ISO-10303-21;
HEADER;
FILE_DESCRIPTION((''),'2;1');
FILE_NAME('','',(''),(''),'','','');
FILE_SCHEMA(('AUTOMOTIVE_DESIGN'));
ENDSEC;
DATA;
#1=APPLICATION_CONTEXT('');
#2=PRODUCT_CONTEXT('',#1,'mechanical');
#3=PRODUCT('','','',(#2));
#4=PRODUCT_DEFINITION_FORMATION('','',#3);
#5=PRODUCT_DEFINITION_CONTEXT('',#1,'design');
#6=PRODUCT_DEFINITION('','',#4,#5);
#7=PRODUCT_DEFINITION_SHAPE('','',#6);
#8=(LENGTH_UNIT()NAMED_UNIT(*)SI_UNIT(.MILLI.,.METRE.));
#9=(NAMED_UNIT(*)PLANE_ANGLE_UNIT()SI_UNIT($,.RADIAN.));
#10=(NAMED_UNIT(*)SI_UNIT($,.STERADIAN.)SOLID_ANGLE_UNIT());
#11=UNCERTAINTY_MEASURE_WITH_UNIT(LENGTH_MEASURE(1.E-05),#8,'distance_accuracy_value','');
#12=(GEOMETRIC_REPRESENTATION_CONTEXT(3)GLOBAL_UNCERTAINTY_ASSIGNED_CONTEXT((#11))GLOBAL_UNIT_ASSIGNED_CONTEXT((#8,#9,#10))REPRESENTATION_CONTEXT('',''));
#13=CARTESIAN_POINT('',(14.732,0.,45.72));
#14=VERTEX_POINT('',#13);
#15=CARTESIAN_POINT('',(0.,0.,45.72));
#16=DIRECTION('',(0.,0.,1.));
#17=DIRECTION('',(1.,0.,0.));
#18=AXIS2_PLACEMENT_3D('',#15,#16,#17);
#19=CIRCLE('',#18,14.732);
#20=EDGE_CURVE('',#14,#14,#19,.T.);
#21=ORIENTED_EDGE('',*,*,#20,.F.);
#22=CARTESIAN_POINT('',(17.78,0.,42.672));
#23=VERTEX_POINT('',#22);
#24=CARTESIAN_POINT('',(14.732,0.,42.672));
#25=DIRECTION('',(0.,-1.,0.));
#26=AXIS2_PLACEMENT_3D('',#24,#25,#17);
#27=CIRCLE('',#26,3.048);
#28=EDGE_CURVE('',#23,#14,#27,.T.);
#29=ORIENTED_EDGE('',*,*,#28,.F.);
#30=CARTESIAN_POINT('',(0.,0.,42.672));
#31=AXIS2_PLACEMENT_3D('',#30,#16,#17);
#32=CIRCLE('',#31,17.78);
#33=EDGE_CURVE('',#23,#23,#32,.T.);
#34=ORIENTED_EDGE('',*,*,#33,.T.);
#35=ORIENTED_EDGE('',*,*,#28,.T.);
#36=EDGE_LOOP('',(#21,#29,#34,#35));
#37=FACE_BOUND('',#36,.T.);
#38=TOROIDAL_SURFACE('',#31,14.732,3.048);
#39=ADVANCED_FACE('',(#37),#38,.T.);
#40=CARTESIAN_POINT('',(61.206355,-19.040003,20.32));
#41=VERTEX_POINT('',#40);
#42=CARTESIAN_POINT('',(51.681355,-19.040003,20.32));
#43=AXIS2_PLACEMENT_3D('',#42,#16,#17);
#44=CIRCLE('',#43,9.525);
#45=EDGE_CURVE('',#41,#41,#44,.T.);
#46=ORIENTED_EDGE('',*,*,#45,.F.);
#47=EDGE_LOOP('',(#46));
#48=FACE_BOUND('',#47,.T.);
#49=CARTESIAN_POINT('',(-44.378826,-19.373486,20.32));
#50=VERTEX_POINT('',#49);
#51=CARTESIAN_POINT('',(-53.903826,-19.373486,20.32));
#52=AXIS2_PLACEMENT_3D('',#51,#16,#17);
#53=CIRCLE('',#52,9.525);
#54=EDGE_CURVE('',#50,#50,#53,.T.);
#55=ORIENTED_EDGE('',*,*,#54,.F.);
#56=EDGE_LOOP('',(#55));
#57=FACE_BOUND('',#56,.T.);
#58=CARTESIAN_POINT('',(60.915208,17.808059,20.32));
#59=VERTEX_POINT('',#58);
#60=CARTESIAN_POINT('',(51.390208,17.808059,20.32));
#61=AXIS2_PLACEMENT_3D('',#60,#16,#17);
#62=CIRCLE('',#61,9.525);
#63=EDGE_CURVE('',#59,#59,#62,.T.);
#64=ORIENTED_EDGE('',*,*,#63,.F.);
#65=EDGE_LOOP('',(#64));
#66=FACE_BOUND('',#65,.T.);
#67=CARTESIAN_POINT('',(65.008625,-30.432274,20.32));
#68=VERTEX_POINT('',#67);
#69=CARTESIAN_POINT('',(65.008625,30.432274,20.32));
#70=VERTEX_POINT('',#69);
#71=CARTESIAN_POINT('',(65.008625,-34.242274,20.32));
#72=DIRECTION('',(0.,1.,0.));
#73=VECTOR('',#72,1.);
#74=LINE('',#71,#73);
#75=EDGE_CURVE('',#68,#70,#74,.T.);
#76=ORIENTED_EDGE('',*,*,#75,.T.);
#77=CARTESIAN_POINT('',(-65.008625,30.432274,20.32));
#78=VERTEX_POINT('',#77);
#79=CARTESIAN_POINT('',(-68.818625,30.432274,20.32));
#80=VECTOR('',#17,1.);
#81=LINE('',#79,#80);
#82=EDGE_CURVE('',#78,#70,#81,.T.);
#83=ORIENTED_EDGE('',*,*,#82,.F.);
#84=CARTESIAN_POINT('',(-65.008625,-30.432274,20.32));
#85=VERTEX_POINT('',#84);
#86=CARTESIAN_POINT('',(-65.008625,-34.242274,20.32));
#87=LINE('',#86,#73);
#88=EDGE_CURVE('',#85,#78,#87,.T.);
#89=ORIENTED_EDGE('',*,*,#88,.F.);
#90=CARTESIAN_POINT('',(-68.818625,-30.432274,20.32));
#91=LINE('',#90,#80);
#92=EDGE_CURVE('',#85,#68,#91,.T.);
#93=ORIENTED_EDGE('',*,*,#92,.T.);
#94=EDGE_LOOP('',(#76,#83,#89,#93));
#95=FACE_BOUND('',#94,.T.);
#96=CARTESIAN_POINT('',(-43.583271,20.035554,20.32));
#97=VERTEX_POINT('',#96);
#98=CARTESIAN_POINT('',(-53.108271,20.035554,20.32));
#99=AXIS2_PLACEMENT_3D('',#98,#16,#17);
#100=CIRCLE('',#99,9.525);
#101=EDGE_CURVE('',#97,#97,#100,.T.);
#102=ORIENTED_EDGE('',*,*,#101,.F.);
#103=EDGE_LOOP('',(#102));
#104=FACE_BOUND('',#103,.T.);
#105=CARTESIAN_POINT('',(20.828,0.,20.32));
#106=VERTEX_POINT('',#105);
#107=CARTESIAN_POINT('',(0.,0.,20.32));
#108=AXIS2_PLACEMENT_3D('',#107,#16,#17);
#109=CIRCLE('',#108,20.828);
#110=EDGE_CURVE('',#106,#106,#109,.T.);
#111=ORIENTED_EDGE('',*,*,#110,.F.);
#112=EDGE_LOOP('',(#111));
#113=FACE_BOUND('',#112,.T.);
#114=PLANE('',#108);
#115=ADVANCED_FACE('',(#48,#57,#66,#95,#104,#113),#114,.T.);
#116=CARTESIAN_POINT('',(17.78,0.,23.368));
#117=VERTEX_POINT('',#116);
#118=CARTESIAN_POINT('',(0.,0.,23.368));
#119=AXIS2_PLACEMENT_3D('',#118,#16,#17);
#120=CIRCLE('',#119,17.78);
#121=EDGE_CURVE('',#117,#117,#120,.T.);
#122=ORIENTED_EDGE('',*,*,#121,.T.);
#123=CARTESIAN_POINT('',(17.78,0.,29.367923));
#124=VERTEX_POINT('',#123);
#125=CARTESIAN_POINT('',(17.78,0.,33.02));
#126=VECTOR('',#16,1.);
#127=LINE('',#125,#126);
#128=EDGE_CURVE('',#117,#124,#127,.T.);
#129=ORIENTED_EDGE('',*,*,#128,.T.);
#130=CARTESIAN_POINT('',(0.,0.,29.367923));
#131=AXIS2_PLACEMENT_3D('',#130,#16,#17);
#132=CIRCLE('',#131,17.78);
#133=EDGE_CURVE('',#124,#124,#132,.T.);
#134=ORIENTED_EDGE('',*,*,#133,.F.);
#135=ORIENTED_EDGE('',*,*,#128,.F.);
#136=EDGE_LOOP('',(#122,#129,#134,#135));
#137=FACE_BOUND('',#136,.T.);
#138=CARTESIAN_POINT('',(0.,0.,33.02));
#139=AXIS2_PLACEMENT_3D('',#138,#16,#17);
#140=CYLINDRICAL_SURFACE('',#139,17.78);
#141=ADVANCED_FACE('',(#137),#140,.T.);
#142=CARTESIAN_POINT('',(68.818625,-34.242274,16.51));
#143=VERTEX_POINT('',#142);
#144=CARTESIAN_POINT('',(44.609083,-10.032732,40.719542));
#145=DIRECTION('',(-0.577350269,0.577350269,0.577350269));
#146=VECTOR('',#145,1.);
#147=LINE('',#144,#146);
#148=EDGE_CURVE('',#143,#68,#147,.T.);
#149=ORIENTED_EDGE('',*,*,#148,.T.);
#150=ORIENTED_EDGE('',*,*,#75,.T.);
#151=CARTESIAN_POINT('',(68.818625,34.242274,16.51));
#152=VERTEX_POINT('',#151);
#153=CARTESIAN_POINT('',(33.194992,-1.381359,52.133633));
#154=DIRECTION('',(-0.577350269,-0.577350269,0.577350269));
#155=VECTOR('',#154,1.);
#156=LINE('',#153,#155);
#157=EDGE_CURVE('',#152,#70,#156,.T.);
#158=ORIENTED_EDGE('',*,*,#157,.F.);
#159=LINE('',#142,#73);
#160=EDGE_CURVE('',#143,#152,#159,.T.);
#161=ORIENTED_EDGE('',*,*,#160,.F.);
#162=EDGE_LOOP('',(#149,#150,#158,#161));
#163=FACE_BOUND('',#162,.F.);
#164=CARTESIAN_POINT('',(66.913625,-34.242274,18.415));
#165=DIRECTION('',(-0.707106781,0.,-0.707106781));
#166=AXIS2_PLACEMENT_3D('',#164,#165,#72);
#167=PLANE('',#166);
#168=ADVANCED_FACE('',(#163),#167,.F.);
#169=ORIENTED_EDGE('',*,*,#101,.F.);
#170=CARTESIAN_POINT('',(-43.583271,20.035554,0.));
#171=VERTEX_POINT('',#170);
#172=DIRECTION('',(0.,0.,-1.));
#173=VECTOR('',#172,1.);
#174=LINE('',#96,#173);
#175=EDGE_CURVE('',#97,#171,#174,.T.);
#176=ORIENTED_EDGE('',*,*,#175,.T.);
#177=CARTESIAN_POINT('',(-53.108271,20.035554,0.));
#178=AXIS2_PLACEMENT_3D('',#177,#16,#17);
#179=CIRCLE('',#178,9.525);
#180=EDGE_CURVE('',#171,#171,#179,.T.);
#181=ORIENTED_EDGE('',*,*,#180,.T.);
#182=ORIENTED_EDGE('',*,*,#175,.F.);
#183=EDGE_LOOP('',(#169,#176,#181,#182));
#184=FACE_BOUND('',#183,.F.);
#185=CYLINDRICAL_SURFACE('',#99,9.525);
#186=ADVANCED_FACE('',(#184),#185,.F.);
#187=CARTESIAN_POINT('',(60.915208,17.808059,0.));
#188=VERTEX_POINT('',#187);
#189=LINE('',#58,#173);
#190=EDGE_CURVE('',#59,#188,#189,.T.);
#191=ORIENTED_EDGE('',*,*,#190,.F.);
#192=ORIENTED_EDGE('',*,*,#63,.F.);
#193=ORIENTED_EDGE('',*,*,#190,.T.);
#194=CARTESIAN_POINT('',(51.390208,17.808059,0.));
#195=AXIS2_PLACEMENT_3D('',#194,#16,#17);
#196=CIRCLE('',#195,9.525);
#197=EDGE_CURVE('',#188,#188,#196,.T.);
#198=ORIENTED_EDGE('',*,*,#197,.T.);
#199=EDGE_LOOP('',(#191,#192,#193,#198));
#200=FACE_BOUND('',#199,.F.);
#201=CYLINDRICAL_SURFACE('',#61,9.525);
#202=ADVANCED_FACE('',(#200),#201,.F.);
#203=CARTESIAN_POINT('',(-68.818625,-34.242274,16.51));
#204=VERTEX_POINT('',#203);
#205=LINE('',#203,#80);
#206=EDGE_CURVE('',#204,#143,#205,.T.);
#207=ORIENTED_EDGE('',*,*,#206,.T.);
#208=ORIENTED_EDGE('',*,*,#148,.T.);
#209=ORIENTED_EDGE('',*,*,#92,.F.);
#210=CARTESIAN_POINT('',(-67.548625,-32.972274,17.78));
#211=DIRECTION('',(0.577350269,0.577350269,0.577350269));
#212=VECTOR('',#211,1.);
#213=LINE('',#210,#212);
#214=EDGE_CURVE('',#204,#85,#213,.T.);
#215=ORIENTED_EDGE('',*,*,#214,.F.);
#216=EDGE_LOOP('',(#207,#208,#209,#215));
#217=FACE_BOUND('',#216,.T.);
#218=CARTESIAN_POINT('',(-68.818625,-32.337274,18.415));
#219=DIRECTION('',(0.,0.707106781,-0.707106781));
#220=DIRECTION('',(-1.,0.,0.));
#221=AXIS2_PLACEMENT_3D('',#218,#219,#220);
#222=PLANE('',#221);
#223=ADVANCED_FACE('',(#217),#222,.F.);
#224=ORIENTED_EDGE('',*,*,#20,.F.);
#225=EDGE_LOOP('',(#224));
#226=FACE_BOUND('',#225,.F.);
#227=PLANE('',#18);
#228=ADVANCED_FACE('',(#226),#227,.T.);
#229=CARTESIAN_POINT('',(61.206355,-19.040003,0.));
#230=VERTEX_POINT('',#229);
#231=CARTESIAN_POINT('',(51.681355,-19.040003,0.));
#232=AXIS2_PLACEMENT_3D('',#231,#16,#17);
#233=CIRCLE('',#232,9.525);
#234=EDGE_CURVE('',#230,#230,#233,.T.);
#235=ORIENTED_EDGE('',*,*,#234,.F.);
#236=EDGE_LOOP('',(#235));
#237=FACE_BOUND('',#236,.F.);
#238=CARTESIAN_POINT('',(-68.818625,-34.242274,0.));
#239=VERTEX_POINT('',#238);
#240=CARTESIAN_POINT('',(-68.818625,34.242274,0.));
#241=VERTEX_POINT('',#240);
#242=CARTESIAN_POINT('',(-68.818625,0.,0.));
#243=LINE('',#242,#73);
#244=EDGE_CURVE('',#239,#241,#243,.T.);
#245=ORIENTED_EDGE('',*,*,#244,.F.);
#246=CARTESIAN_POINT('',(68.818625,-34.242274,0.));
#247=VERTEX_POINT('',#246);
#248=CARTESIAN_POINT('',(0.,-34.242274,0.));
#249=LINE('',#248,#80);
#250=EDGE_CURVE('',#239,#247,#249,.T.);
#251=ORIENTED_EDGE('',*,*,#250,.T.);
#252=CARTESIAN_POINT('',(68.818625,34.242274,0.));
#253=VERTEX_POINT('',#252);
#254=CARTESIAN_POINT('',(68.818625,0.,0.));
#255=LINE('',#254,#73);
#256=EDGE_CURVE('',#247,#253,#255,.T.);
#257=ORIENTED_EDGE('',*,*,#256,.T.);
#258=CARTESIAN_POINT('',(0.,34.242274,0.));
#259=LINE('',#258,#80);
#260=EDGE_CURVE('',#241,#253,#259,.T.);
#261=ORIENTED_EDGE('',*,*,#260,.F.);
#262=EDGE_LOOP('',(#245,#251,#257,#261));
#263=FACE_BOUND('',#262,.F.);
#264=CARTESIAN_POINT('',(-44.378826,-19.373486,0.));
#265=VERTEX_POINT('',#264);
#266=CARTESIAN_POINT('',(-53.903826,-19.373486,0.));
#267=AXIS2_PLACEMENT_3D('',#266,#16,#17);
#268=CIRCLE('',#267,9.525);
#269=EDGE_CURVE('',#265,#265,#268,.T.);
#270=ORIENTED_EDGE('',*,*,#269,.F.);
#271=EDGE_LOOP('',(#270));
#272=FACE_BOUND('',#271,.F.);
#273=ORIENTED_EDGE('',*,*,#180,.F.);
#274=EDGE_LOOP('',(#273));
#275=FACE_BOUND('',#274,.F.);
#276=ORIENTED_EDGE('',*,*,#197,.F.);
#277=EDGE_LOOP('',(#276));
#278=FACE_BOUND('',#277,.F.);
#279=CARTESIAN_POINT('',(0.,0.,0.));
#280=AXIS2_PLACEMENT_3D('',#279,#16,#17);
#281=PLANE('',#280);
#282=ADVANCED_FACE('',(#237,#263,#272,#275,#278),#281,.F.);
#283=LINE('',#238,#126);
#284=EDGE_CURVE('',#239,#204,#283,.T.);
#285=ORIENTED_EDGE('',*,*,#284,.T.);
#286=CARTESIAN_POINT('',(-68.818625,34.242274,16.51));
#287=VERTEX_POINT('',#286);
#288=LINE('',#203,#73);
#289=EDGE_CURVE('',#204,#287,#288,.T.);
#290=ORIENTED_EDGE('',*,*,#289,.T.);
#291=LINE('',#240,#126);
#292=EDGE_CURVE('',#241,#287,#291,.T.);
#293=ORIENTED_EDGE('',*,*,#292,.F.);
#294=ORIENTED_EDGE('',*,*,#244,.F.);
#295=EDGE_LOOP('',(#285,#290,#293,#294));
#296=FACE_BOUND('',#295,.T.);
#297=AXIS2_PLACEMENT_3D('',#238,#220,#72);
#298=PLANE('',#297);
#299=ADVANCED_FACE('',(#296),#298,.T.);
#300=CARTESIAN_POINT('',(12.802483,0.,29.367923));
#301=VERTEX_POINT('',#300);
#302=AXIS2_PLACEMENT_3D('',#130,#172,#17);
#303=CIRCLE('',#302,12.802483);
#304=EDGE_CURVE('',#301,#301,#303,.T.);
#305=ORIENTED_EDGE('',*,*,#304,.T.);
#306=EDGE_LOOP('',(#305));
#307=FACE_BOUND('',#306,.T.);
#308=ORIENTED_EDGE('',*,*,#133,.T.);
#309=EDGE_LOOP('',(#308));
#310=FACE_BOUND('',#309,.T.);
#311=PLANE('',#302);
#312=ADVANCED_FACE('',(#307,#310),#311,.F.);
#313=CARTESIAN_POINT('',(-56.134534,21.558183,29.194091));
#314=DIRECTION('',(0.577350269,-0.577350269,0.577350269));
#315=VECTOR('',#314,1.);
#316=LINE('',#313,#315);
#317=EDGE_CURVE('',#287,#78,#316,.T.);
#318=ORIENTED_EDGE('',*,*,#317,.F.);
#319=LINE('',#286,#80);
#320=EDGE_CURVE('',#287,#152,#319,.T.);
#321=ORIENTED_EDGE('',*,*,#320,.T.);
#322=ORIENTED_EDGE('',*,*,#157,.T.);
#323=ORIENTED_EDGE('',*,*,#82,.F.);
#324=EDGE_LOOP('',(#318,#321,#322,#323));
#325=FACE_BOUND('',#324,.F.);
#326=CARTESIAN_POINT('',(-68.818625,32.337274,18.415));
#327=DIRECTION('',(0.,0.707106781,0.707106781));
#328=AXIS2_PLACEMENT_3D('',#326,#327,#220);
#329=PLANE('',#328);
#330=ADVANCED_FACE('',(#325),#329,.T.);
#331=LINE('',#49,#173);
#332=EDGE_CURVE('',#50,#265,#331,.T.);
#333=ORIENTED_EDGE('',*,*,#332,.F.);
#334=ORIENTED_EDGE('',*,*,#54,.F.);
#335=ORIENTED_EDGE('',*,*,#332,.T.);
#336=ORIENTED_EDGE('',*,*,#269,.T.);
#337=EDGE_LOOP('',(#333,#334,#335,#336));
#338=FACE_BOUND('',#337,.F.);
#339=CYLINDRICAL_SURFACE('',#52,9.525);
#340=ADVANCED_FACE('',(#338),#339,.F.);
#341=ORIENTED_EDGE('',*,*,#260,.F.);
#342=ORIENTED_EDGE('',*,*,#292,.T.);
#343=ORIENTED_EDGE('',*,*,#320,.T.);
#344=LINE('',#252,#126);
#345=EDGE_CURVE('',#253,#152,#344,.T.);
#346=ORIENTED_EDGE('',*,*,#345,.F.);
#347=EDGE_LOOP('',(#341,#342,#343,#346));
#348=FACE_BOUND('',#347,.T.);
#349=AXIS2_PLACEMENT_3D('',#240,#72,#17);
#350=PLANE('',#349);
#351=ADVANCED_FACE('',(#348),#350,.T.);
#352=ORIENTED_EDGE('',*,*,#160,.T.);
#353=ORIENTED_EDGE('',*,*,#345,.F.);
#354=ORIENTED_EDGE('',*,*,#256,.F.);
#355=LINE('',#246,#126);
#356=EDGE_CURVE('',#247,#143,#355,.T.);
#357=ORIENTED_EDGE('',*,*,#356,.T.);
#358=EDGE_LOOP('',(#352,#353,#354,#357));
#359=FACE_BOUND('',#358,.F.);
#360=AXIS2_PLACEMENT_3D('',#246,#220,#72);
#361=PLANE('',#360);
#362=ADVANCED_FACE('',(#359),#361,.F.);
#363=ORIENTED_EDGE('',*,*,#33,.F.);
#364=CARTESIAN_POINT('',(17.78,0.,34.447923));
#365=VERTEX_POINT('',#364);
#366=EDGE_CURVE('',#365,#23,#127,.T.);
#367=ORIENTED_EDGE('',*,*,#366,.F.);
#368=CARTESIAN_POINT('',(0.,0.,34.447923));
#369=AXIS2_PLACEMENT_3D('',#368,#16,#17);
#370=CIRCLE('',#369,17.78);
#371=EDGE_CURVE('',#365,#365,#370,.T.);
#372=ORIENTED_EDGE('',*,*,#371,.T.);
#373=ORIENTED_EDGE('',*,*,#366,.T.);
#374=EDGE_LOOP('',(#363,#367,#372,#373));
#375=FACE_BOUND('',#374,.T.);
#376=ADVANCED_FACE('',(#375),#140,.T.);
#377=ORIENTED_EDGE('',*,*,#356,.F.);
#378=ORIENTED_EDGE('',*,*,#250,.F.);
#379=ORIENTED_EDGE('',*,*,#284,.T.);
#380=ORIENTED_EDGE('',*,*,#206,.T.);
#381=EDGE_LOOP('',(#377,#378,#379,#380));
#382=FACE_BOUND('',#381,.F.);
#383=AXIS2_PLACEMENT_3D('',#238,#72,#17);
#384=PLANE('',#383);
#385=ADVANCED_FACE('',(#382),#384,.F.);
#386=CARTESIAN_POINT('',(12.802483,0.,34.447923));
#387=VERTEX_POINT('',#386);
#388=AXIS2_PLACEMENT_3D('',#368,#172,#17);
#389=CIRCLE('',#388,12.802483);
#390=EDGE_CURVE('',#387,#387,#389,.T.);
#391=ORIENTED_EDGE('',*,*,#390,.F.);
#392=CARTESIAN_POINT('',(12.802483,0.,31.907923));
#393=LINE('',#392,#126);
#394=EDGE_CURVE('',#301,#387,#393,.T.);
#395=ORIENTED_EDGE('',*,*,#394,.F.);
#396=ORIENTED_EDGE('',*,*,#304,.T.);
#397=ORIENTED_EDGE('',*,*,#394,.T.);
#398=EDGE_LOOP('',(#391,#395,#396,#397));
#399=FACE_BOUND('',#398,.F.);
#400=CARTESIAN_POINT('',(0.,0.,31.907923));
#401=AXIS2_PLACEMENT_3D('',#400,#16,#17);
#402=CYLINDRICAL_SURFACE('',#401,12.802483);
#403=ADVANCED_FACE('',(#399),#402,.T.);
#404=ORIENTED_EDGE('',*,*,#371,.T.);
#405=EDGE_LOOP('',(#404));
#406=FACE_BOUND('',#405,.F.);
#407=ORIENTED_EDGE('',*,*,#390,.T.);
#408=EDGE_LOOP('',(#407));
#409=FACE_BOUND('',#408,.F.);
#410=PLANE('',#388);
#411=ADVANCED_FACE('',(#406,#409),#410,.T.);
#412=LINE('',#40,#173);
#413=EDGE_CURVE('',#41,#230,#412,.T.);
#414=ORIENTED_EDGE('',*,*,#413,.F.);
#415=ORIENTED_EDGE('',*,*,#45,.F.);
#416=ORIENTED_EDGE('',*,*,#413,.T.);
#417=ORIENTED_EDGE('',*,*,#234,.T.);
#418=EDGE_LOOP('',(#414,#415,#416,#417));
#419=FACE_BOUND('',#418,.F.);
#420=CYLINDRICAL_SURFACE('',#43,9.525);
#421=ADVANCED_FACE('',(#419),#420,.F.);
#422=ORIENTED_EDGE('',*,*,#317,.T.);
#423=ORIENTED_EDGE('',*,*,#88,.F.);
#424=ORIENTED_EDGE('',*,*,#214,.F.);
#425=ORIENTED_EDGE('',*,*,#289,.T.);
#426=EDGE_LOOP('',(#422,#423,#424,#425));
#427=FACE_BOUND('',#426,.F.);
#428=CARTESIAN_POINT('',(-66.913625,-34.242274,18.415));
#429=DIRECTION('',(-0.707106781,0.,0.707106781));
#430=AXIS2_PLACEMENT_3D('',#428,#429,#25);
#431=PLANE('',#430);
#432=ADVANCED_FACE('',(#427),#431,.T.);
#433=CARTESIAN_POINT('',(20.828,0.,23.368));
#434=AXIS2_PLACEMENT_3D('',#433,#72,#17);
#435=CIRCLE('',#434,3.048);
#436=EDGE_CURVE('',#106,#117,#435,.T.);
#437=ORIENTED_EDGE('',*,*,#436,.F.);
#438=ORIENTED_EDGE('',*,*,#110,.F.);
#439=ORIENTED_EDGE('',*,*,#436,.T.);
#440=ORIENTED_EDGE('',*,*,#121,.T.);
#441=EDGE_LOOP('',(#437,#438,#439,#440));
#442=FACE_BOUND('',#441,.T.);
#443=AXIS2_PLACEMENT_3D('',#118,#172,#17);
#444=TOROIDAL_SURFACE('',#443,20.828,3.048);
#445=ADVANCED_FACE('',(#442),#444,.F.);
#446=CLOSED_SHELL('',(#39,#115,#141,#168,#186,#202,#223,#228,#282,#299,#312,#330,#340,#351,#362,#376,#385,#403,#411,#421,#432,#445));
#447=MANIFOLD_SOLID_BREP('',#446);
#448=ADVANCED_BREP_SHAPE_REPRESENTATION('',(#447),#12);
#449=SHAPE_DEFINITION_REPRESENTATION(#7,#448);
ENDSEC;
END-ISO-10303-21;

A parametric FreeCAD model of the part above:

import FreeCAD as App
import Part
import Sketcher
Q = App.Units.Quantity


def edges_at(feature, points):
    """Names of the edges that pass closest to the given points."""
    edges = feature.Shape.Edges
    near = lambda p: min(range(len(edges)), key=lambda i: edges[i].distToShape(Part.Vertex(*p))[0])
    return sorted({f"Edge{near(p) + 1}" for p in points})


def add_polygon(sketch, points):
    """Adds a closed chain of lines whose ends are joined by coincident constraints."""
    first, n = sketch.GeometryCount, len(points)
    for a, b in zip(points, points[1:] + points[:1]):
        sketch.addGeometry(Part.LineSegment(App.Vector(*a, 0), App.Vector(*b, 0)), False)
    for i in range(n):
        sketch.addConstraint(Sketcher.Constraint("Coincident", first + i, 2, first + (i + 1) % n, 1))

doc = App.newDocument("Part")
body = doc.addObject("PartDesign::Body", "Body")

# Sketch on XY plane
sketch1 = body.newObject("Sketcher::SketchObject", "Sketch")
sketch1.AttachmentSupport = (doc.getObject("XY_Plane"), [""])
sketch1.MapMode = "FlatFace"
add_polygon(sketch1, [(-69, 34), (-69, -34), (69, -34), (69, 34)])  # lines 0-3
sketch1.addConstraint(Sketcher.Constraint("Vertical", 0))
sketch1.addConstraint(Sketcher.Constraint("Horizontal", 1))
sketch1.addConstraint(Sketcher.Constraint("Vertical", 2))
sketch1.addConstraint(Sketcher.Constraint("Horizontal", 3))
sketch1.addConstraint(Sketcher.Constraint("Symmetric", 0, 2, 2, 2, -1, 1))
sketch1.addConstraint(Sketcher.Constraint("DistanceX", 1, 1, 1, 2, Q("137.63725 mm")))
sketch1.addConstraint(Sketcher.Constraint("DistanceY", 0, 2, 0, 1, Q("68.484548 mm")))
pad1 = body.newObject("PartDesign::Pad", "Pad")
pad1.Profile = sketch1
pad1.Length = Q("0.8 in")

# Sketch on XY plane
sketch2 = body.newObject("Sketcher::SketchObject", "Sketch001")
sketch2.AttachmentSupport = (doc.getObject("XY_Plane"), [""])
sketch2.MapMode = "FlatFace"
sketch2.AttachmentOffset = App.Placement(App.Vector(0, 0, 0.8 * 25.4), App.Rotation())
sketch2.addGeometry(Part.Circle(App.Vector(51, 18, 0), App.Vector(0, 0, 1), 10), False)
sketch2.addGeometry(Part.Circle(App.Vector(-53, 20, 0), App.Vector(0, 0, 1), 10), False)
sketch2.addGeometry(Part.Circle(App.Vector(-54, -19, 0), App.Vector(0, 0, 1), 10), False)
sketch2.addGeometry(Part.Circle(App.Vector(52, -19, 0), App.Vector(0, 0, 1), 10), False)
sketch2.addConstraint(Sketcher.Constraint("Equal", 0, 1))
sketch2.addConstraint(Sketcher.Constraint("Equal", 1, 2))
sketch2.addConstraint(Sketcher.Constraint("Equal", 2, 3))
sketch2.addConstraint(Sketcher.Constraint("Diameter", 0, Q("0.75 in")))
sketch2.addConstraint(Sketcher.Constraint("DistanceY", -1, 1, 0, 3, Q("17.808059 mm")))
sketch2.addConstraint(Sketcher.Constraint("DistanceX", 1, 3, -1, 1, Q("53.108271 mm")))
sketch2.addConstraint(Sketcher.Constraint("DistanceX", 1, 3, 0, 3, Q("104.498479 mm")))
sketch2.addConstraint(Sketcher.Constraint("DistanceY", 2, 3, 1, 3, Q("39.40904 mm")))
sketch2.addConstraint(Sketcher.Constraint("DistanceX", 2, 3, 3, 3, Q("105.585181 mm")))
sketch2.addConstraint(Sketcher.Constraint("DistanceY", -1, 1, 1, 3, Q("20.035554 mm")))
sketch2.addConstraint(Sketcher.Constraint("DistanceX", 2, 3, -1, 1, Q("53.903826 mm")))
sketch2.addConstraint(Sketcher.Constraint("DistanceY", 3, 3, -1, 1, Q("19.040003 mm")))
pocket1 = body.newObject("PartDesign::Pocket", "Pocket")
pocket1.Profile = sketch2
pocket1.Length = Q("1 in")

# Sketch on XZ plane
sketch3 = body.newObject("Sketcher::SketchObject", "Sketch002")
sketch3.AttachmentSupport = (doc.getObject("XZ_Plane"), [""])
sketch3.MapMode = "FlatFace"
add_polygon(sketch3, [(0, 46), (0, 20), (18, 20), (18, 46)])  # lines 0-3
sketch3.addConstraint(Sketcher.Constraint("Vertical", 0))
sketch3.addConstraint(Sketcher.Constraint("Horizontal", 1))
sketch3.addConstraint(Sketcher.Constraint("Vertical", 2))
sketch3.addConstraint(Sketcher.Constraint("Horizontal", 3))
sketch3.addConstraint(Sketcher.Constraint("PointOnObject", 0, 2, -2))
sketch3.addConstraint(Sketcher.Constraint("DistanceY", 0, 2, 0, 1, Q("1 in")))
sketch3.addConstraint(Sketcher.Constraint("DistanceX", 1, 1, 1, 2, Q("0.7 in")))
sketch3.addConstraint(Sketcher.Constraint("DistanceY", -1, 1, 0, 2, Q("0.8 in")))
revolution = body.newObject("PartDesign::Revolution", "Revolution")
revolution.Profile = sketch3
revolution.ReferenceAxis = (sketch3, ["V_Axis"])
revolution.Angle = 360

# Sketch on XZ plane
sketch4 = body.newObject("Sketcher::SketchObject", "Sketch003")
sketch4.AttachmentSupport = (doc.getObject("XZ_Plane"), [""])
sketch4.MapMode = "FlatFace"
add_polygon(sketch4, [(13, 34), (13, 29), (18, 29), (18, 34)])  # lines 0-3
sketch4.addConstraint(Sketcher.Constraint("Vertical", 0))
sketch4.addConstraint(Sketcher.Constraint("Horizontal", 1))
sketch4.addConstraint(Sketcher.Constraint("Vertical", 2))
sketch4.addConstraint(Sketcher.Constraint("Horizontal", 3))
sketch4.addConstraint(Sketcher.Constraint("Equal", 3, 0))
sketch4.addConstraint(Sketcher.Constraint("DistanceX", 1, 1, 1, 2, Q("0.2 in")))
sketch4.addConstraint(Sketcher.Constraint("DistanceX", -1, 1, 0, 2, Q("12.802483 mm")))
sketch4.addConstraint(Sketcher.Constraint("DistanceY", -1, 1, 0, 2, Q("29.367923 mm")))
groove = body.newObject("PartDesign::Groove", "Groove")
groove.Profile = sketch4
groove.ReferenceAxis = (sketch4, ["V_Axis"])
groove.Angle = 360
doc.recompute()

chamfer = body.newObject("PartDesign::Chamfer", "Chamfer")
chamfer.Base = (groove, edges_at(groove, [
    (0, -34.242, 20.32),
    (0, 34.242, 20.32),
    (68.819, 0, 20.32),
    (-68.819, 0, 20.32),
]))
chamfer.Size = Q("0.15 in")
doc.recompute()

fillet = body.newObject("PartDesign::Fillet", "Fillet")
fillet.Base = (chamfer, edges_at(chamfer, [(-17.78, 0, 45.72), (-17.78, 0, 20.32)]))
fillet.Radius = Q("0.12 in")

doc.recompute()
